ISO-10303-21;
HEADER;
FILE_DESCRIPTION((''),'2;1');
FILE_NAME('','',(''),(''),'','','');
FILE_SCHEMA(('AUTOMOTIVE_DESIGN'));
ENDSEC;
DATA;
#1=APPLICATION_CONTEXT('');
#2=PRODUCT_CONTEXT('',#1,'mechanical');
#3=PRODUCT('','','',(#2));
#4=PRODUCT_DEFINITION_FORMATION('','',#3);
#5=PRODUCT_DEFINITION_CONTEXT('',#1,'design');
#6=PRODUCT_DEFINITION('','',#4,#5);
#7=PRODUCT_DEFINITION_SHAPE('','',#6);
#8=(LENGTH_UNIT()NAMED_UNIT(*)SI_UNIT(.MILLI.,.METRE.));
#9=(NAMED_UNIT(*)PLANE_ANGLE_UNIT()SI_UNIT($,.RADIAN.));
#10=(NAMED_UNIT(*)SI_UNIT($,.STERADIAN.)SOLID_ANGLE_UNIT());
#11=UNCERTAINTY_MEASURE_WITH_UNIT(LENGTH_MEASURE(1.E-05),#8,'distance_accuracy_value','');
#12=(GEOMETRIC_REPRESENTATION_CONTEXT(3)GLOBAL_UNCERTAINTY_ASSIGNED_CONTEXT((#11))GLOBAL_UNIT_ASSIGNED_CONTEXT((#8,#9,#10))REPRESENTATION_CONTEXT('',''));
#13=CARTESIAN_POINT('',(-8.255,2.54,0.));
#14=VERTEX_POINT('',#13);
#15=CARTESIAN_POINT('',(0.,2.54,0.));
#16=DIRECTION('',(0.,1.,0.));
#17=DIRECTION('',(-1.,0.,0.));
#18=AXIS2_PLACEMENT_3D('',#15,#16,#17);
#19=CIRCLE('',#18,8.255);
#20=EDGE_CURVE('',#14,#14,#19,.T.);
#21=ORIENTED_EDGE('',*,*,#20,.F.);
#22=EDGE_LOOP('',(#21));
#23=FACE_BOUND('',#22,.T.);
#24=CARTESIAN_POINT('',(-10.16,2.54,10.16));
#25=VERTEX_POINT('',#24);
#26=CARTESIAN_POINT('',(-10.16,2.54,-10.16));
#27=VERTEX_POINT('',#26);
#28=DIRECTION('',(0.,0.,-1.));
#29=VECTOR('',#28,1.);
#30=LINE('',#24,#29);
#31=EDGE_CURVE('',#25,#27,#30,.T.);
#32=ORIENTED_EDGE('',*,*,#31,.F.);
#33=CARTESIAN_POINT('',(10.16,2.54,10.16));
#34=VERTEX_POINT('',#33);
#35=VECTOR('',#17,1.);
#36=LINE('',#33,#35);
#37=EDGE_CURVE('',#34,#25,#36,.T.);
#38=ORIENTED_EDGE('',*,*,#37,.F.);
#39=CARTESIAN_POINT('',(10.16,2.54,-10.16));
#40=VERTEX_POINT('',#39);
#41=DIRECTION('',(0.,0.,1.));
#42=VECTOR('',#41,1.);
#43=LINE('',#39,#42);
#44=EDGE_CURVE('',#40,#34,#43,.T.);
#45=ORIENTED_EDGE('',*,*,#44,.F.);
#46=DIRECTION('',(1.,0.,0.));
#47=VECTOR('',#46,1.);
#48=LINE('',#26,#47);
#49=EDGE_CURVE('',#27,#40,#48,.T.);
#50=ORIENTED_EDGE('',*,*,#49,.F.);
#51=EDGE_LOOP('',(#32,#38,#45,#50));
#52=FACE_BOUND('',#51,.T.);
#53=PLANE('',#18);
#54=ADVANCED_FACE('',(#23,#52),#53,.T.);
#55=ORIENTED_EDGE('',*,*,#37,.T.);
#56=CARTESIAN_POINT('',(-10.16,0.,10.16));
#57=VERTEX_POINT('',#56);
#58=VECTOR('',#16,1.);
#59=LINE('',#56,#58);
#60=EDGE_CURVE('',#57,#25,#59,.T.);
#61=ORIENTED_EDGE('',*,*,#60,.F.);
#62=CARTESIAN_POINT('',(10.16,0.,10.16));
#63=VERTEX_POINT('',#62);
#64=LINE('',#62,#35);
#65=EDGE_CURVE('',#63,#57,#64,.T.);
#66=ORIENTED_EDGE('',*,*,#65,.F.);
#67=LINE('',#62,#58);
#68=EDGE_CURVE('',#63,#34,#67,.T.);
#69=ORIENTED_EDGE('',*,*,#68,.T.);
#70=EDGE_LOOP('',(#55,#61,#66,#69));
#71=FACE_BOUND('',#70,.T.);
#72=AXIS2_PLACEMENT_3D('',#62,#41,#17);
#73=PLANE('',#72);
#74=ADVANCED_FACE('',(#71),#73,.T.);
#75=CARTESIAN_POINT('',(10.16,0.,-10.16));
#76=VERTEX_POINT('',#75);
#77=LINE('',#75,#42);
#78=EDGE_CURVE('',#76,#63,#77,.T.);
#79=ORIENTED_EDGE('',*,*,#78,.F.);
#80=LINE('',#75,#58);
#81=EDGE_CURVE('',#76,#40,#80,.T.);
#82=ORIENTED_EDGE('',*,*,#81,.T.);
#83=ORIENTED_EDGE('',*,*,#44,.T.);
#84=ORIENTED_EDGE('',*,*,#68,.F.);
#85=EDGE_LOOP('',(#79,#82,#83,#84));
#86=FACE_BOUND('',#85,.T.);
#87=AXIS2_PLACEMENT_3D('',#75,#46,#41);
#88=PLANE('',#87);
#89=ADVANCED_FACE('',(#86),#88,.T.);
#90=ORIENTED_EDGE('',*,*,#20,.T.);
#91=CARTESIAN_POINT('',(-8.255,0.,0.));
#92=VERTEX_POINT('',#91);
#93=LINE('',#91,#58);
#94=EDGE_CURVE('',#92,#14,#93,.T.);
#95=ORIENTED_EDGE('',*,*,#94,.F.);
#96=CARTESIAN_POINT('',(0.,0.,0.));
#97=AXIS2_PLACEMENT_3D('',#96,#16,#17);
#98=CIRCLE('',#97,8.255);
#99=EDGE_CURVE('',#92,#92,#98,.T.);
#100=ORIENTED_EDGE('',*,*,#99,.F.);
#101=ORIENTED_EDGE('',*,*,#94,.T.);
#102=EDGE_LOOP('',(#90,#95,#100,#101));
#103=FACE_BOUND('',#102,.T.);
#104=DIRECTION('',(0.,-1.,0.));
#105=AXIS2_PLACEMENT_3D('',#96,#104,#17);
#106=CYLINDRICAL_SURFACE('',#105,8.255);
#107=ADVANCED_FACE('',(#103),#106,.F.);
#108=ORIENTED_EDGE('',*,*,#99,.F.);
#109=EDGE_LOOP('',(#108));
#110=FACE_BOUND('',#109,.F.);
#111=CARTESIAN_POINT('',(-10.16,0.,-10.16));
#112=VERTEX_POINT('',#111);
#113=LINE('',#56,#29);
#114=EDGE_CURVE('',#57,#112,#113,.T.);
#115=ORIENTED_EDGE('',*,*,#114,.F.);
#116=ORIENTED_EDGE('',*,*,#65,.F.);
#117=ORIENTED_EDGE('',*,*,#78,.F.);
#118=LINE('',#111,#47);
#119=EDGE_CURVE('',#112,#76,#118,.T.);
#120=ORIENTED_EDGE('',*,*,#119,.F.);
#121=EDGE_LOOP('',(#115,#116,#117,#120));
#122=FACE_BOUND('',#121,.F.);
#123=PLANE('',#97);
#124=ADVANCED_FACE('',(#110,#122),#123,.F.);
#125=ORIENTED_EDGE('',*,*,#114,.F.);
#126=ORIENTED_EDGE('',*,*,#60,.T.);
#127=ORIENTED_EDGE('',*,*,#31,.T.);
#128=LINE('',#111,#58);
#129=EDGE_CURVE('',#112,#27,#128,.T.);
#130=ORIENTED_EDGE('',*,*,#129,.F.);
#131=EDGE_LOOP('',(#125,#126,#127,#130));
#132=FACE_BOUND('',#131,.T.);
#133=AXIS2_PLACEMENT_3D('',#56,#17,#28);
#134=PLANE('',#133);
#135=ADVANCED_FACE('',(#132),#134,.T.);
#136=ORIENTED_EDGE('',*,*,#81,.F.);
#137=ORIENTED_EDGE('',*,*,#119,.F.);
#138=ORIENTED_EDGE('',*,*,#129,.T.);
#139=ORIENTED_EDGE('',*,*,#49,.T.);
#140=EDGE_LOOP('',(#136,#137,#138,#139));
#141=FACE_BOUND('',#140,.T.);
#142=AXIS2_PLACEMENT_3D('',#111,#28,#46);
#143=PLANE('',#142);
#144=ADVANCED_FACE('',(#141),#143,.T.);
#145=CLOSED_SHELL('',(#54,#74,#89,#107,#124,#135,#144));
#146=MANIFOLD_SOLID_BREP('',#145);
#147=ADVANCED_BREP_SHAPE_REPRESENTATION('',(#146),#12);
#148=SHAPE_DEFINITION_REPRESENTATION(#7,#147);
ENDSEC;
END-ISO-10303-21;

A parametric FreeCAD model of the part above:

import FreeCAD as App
import Part
import Sketcher
from FreeCAD import Vector
Q = App.Units.Quantity


def add_polygon(sketch, points):
    """Adds a closed chain of lines whose ends are joined by coincident constraints."""
    first, n = sketch.GeometryCount, len(points)
    for a, b in zip(points, points[1:] + points[:1]):
        sketch.addGeometry(Part.LineSegment(App.Vector(*a, 0), App.Vector(*b, 0)), False)
    for i in range(n):
        sketch.addConstraint(Sketcher.Constraint("Coincident", first + i, 2, first + (i + 1) % n, 1))

doc = App.newDocument("Part")
params = doc.addObject("Spreadsheet::Sheet", "Params")
for row, (alias, value) in enumerate([
    ("sketch1_diameter", "0.65 in"),
    ("sketch1_width", "0.8 in"),
    ("pad1_length", "0.1 in"),
], start=1):
    params.set(f"A{row}", alias)
    params.set(f"B{row}", "=" + value)
    params.setAlias(f"B{row}", alias)

body = doc.addObject("PartDesign::Body", "Body")

# Sketch on XZ plane
sketch1 = body.newObject("Sketcher::SketchObject", "Sketch")
sketch1.AttachmentSupport = (doc.getObject("XZ_Plane"), [""])
sketch1.MapMode = "FlatFace"
add_polygon(sketch1, [(10, -10), (-10, -10), (-10, 10), (10, 10)])  # lines 0-3
sketch1.addGeometry(Part.Circle(Vector(0, 0, 0), Vector(0, 0, 1), 8), False)  # 4
sketch1.addConstraint([
    Sketcher.Constraint("Horizontal", 0),
    Sketcher.Constraint("Vertical", 1),
    Sketcher.Constraint("Horizontal", 2),
    Sketcher.Constraint("Vertical", 3),
    Sketcher.Constraint("Coincident", 4, 3, -1, 1),
    Sketcher.Constraint("Symmetric", 0, 2, 2, 2, -1, 1),
    Sketcher.Constraint("Equal", 2, 1),
    Sketcher.Constraint("Diameter", 4, Q("0.65 in")),
    Sketcher.Constraint("DistanceX", 0, 2, 0, 1, Q("0.8 in")),
])
sketch1.setExpression("Constraints[11]", "Params.sketch1_diameter")
sketch1.setExpression("Constraints[12]", "Params.sketch1_width")
pad1 = body.newObject("PartDesign::Pad", "Pad")
pad1.Profile = sketch1
pad1.setExpression("Length", "Params.pad1_length")
pad1.Reversed = True

doc.recompute()
